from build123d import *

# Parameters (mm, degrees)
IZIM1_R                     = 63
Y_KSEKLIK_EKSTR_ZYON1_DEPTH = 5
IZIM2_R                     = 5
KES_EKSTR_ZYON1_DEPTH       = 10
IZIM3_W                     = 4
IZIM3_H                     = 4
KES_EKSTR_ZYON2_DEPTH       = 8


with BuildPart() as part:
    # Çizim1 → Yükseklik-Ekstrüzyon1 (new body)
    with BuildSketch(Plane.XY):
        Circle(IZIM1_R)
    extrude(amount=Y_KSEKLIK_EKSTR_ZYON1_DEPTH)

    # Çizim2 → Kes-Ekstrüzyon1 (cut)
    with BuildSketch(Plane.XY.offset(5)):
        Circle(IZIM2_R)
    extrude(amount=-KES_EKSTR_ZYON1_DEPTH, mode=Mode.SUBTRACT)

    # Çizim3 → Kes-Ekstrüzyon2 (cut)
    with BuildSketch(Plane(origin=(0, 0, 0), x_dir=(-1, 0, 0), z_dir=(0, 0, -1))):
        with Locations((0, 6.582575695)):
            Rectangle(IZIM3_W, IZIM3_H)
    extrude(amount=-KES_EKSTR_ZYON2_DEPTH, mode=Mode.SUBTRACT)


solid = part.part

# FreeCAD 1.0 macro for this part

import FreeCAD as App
import Part
import Sketcher

V = App.Vector

doc = App.newDocument("Part")
body = doc.addObject("PartDesign::Body", "Body")

sketch1 = body.newObject("Sketcher::SketchObject", "Sketch")
sketch1.AttachmentSupport = (doc.getObject("XY_Plane"), [""])
sketch1.MapMode = "FlatFace"
sketch1.addGeometry(Part.Circle(V(0, 0, 0), V(0, 0, 1), 63), False)
sketch1.addConstraint(Sketcher.Constraint("Coincident", 0, 3, -1, 1))
sketch1.addConstraint(Sketcher.Constraint("Diameter", 0, 126.0))
pad1 = body.newObject("PartDesign::Pad", "Pad")
pad1.Profile = sketch1
pad1.Length = 5

sketch2 = body.newObject("Sketcher::SketchObject", "Sketch001")
sketch2.AttachmentSupport = (doc.getObject("XY_Plane"), [""])
sketch2.MapMode = "FlatFace"
sketch2.AttachmentOffset = App.Placement(V(0, 0, 5), App.Rotation())
sketch2.addGeometry(Part.Circle(V(0, 0, 0), V(0, 0, 1), 5), False)
sketch2.addConstraint(Sketcher.Constraint("Coincident", 0, 3, -1, 1))
sketch2.addConstraint(Sketcher.Constraint("Diameter", 0, 10.0))
pocket1 = body.newObject("PartDesign::Pocket", "Pocket")
pocket1.Profile = sketch2
pocket1.Length = 10

sketch3 = body.newObject("Sketcher::SketchObject", "Sketch002")
sketch3.AttachmentSupport = (doc.getObject("XY_Plane"), [""])
sketch3.MapMode = "FlatFace"
sketch3.addGeometry(Part.LineSegment(V(2, 8.6, 0), V(2, 4.6, 0)), False)
sketch3.addGeometry(Part.LineSegment(V(2, 4.6, 0), V(-2, 4.6, 0)), False)
sketch3.addGeometry(Part.LineSegment(V(-2, 4.6, 0), V(-2, 8.6, 0)), False)
sketch3.addGeometry(Part.LineSegment(V(-2, 8.6, 0), V(2, 8.6, 0)), False)
sketch3.addConstraint(Sketcher.Constraint("Coincident", 0, 2, 1, 1))
sketch3.addConstraint(Sketcher.Constraint("Coincident", 1, 2, 2, 1))
sketch3.addConstraint(Sketcher.Constraint("Coincident", 2, 2, 3, 1))
sketch3.addConstraint(Sketcher.Constraint("Coincident", 3, 2, 0, 1))
sketch3.addConstraint(Sketcher.Constraint("Vertical", 0))
sketch3.addConstraint(Sketcher.Constraint("Horizontal", 1))
sketch3.addConstraint(Sketcher.Constraint("Vertical", 2))
sketch3.addConstraint(Sketcher.Constraint("Horizontal", 3))
sketch3.addConstraint(Sketcher.Constraint("Equal", 3, 0))
sketch3.addConstraint(Sketcher.Constraint("DistanceX", 1, 2, 1, 1, 4.0))
sketch3.addConstraint(Sketcher.Constraint("DistanceX", -1, 1, 0, 2, 2.0))
sketch3.addConstraint(Sketcher.Constraint("DistanceY", -1, 1, 0, 2, 4.582576))
pocket2 = body.newObject("PartDesign::Pocket", "Pocket001")
pocket2.Profile = sketch3
pocket2.Length = 8
pocket2.Reversed = True

doc.recompute()
